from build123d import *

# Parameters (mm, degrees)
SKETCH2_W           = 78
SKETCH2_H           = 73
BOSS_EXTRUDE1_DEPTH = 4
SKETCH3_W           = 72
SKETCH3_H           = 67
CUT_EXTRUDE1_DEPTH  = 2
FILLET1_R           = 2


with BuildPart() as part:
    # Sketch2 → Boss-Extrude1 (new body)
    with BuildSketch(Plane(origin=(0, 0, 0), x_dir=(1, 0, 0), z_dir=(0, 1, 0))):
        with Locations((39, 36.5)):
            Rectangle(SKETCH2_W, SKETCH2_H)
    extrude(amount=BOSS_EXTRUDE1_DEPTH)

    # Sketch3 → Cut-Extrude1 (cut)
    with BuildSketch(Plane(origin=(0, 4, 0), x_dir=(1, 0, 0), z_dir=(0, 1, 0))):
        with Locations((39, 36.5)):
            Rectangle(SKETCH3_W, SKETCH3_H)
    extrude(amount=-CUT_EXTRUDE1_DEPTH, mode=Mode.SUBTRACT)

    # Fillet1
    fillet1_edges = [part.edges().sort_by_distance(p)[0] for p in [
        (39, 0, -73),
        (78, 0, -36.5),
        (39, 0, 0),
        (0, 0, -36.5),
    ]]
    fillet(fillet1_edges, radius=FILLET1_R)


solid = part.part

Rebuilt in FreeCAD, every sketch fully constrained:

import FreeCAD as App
import Part
import Sketcher
Q = App.Units.Quantity


def edges_at(feature, points):
    """Names of the edges that pass closest to the given points."""
    edges = feature.Shape.Edges
    near = lambda p: min(range(len(edges)), key=lambda i: edges[i].distToShape(Part.Vertex(*p))[0])
    return sorted({f"Edge{near(p) + 1}" for p in points})


def add_polygon(sketch, points):
    """Adds a closed chain of lines whose ends are joined by coincident constraints."""
    first, n = sketch.GeometryCount, len(points)
    for a, b in zip(points, points[1:] + points[:1]):
        sketch.addGeometry(Part.LineSegment(App.Vector(*a, 0), App.Vector(*b, 0)), False)
    for i in range(n):
        sketch.addConstraint(Sketcher.Constraint("Coincident", first + i, 2, first + (i + 1) % n, 1))

doc = App.newDocument("Part")
params = doc.addObject("Spreadsheet::Sheet", "Params")
for row, (alias, value) in enumerate([
    ("sketch1_width", "78 mm"),
    ("sketch1_height", "73 mm"),
    ("pad1_length", "4 mm"),
    ("sketch2_width", "72 mm"),
    ("sketch2_height", "67 mm"),
    ("pocket1_length", "2 mm"),
    ("fillet_radius", "2 mm"),
], start=1):
    params.set(f"A{row}", alias)
    params.set(f"B{row}", "=" + value)
    params.setAlias(f"B{row}", alias)

body = doc.addObject("PartDesign::Body", "Body")

# Sketch on XZ plane
sketch1 = body.newObject("Sketcher::SketchObject", "Sketch")
sketch1.AttachmentSupport = (doc.getObject("XZ_Plane"), [""])
sketch1.MapMode = "FlatFace"
add_polygon(sketch1, [(0, -73), (0, 0), (78, 0), (78, -73)])  # lines 0-3
sketch1.addConstraint([
    Sketcher.Constraint("Vertical", 0),
    Sketcher.Constraint("Horizontal", 1),
    Sketcher.Constraint("Vertical", 2),
    Sketcher.Constraint("Horizontal", 3),
    Sketcher.Constraint("Coincident", 0, 2, -1, 1),
    Sketcher.Constraint("DistanceX", 1, 1, 1, 2, Q("78 mm")),
    Sketcher.Constraint("DistanceY", 0, 1, 0, 2, Q("73 mm")),
])
sketch1.setExpression("Constraints[9]", "Params.sketch1_width")
sketch1.setExpression("Constraints[10]", "Params.sketch1_height")
pad1 = body.newObject("PartDesign::Pad", "Pad")
pad1.Profile = sketch1
pad1.setExpression("Length", "Params.pad1_length")
pad1.Reversed = True

# Sketch on XZ plane
sketch2 = body.newObject("Sketcher::SketchObject", "Sketch001")
sketch2.AttachmentSupport = (doc.getObject("XZ_Plane"), [""])
sketch2.MapMode = "FlatFace"
sketch2.AttachmentOffset = App.Placement(App.Vector(0, 0, -4), App.Rotation())
add_polygon(sketch2, [(3, -70), (3, -3), (75, -3), (75, -70)])  # lines 0-3
sketch2.addConstraint([
    Sketcher.Constraint("Vertical", 0),
    Sketcher.Constraint("Horizontal", 1),
    Sketcher.Constraint("Vertical", 2),
    Sketcher.Constraint("Horizontal", 3),
    Sketcher.Constraint("DistanceX", 1, 1, 1, 2, Q("72 mm")),
    Sketcher.Constraint("DistanceY", 0, 1, 0, 2, Q("67 mm")),
    Sketcher.Constraint("DistanceX", -1, 1, 0, 2, Q("3 mm")),
    Sketcher.Constraint("DistanceY", 0, 2, -1, 1, Q("3 mm")),
])
sketch2.setExpression("Constraints[8]", "Params.sketch2_width")
sketch2.setExpression("Constraints[9]", "Params.sketch2_height")
pocket1 = body.newObject("PartDesign::Pocket", "Pocket")
pocket1.Profile = sketch2
pocket1.setExpression("Length", "Params.pocket1_length")
pocket1.Reversed = True
doc.recompute()

fillet = body.newObject("PartDesign::Fillet", "Fillet")
fillet.Base = (pocket1, edges_at(pocket1, [
    (39, 0, -73),
    (78, 0, -36.5),
    (39, 0, 0),
    (0, 0, -36.5),
]))
fillet.setExpression("Radius", "Params.fillet_radius")

doc.recompute()
